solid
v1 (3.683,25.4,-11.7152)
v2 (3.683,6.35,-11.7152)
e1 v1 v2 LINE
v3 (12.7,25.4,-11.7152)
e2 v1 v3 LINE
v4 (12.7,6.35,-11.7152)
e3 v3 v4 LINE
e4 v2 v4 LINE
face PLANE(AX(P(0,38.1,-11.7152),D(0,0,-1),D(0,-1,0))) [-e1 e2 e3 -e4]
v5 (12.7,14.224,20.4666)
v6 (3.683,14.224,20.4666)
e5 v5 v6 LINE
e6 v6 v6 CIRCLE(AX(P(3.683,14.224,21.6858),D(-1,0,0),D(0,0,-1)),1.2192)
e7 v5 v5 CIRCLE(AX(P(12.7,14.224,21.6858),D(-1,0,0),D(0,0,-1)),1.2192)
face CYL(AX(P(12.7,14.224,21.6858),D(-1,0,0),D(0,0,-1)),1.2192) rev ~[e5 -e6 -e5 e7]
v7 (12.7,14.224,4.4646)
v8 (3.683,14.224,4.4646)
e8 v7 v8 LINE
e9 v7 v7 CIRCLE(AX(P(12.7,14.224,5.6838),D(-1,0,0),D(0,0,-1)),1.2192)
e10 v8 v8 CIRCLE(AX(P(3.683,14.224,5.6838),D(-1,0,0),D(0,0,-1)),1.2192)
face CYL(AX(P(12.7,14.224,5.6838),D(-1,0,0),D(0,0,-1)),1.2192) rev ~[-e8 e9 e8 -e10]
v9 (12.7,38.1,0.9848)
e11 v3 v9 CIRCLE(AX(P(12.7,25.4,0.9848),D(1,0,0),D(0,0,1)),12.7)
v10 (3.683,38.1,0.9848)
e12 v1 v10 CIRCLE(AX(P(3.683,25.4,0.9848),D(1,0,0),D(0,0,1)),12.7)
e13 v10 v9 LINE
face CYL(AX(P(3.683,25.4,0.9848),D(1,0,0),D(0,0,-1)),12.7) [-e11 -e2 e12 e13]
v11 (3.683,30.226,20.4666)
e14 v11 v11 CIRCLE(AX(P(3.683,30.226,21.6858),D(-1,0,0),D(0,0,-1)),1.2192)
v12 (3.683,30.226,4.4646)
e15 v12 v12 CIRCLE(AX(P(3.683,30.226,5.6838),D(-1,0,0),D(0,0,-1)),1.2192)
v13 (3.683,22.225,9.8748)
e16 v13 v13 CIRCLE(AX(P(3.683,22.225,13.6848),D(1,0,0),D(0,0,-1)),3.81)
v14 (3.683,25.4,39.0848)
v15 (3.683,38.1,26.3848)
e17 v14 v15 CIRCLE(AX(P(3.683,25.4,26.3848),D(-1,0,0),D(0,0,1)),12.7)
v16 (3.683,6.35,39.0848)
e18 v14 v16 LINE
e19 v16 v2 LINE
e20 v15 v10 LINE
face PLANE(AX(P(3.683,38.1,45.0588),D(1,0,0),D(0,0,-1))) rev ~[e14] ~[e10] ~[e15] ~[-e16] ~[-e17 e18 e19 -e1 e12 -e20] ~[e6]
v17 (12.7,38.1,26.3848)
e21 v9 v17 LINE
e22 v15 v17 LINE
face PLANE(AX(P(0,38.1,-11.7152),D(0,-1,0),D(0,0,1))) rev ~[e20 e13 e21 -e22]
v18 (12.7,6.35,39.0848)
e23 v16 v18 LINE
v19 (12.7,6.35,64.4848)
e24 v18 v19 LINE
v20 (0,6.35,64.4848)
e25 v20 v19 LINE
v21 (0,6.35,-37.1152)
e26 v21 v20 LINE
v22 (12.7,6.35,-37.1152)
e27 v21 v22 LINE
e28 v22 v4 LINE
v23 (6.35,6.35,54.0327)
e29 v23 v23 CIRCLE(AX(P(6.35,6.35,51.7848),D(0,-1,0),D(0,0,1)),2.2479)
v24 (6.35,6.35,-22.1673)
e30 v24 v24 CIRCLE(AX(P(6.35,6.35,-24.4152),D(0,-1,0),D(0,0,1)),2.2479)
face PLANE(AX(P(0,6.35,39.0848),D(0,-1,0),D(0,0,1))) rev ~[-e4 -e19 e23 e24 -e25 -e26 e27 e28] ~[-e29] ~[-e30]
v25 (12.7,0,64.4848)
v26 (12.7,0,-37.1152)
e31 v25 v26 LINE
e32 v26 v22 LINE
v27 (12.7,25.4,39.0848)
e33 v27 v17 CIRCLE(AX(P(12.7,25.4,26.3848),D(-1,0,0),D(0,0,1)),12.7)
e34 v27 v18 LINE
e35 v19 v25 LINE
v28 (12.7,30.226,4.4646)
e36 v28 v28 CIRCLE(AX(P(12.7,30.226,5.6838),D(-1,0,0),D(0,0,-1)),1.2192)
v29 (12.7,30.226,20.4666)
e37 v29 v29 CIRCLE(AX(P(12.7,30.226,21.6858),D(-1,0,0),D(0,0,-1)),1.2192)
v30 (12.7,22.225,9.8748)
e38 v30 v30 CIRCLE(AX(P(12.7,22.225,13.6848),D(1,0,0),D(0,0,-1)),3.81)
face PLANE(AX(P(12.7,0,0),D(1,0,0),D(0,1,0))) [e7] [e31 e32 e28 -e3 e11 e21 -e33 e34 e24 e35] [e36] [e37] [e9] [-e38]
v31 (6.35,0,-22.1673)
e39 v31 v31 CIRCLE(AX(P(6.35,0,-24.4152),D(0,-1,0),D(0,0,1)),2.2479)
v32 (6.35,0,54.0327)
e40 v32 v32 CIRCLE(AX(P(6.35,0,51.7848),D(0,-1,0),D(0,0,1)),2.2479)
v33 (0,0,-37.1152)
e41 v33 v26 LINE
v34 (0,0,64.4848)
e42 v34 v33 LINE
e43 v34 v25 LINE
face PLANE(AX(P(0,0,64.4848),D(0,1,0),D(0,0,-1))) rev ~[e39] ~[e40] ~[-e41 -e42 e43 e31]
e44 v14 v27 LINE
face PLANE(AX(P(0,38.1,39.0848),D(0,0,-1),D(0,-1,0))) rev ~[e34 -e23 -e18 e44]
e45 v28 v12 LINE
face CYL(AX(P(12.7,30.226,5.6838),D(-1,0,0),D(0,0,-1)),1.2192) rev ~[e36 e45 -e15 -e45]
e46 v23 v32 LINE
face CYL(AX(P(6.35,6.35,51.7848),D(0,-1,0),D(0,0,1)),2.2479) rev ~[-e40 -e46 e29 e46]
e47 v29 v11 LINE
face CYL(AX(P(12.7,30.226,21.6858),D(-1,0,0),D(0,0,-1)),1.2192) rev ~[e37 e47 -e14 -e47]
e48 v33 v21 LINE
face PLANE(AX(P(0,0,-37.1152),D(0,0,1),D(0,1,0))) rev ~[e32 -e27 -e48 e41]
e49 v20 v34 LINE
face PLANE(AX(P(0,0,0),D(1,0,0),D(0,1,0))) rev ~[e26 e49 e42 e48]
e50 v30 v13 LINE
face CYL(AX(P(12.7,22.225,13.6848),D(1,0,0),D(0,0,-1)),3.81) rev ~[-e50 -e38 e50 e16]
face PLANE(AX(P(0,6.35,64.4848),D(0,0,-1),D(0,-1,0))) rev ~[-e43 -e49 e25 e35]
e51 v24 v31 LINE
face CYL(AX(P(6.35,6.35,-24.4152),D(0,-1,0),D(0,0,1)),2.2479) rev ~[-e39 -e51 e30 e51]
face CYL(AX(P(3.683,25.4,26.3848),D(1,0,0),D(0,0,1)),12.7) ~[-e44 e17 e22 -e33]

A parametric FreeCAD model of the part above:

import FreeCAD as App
import Part
import Sketcher

V = App.Vector
Q = App.Units.Quantity


def edges_at(feature, points):
    """Names of the edges that pass closest to the given points."""
    edges = feature.Shape.Edges
    near = lambda p: min(range(len(edges)), key=lambda i: edges[i].distToShape(Part.Vertex(*p))[0])
    return sorted({f"Edge{near(p) + 1}" for p in points})

doc = App.newDocument("Part")
params = doc.addObject("Spreadsheet::Sheet", "Params")
for row, (alias, value) in enumerate([
    ("sketch1_height", "1 in"),
    ("sketch1_height2", "4 in"),
    ("sketch1_width", "0.25 in"),
    ("sketch1_width2", "1.25 in"),
    ("pad1_length", "0.5 in"),
    ("sketch2_diameter", "0.177 in"),
    ("hole_diameter", "0.177 in"),
    ("sketch3_height", "2.434 in"),
    ("pocket1_length", "1.25 in"),
    ("sketch4_diameter", "0.3 in"),
    ("pocket2_length", "1 in"),
    ("sketch5_diameter", "0.096 in"),
    ("hole2_diameter", "0.096 in"),
    ("fillet_radius", "0.5 in"),
], start=1):
    params.set(f"A{row}", alias)
    params.set(f"B{row}", "=" + value)
    params.setAlias(f"B{row}", alias)

body = doc.addObject("PartDesign::Body", "Body")

# Sketch on YZ plane
sketch1 = body.newObject("Sketcher::SketchObject", "Sketch")
sketch1.AttachmentSupport = (doc.getObject("YZ_Plane"), [""])
sketch1.MapMode = "FlatFace"
sketch1.addGeometry([
    Part.LineSegment(V(6, 39, 0), V(6, 64, 0)),  # 0
    Part.LineSegment(V(6, 64, 0), V(0, 64, 0)),  # 1
    Part.LineSegment(V(0, 64, 0), V(0, -37, 0)),  # 2
    Part.LineSegment(V(0, -37, 0), V(6, -37, 0)),  # 3
    Part.LineSegment(V(6, -37, 0), V(6, -12, 0)),  # 4
    Part.LineSegment(V(6, -12, 0), V(38, -12, 0)),  # 5
    Part.LineSegment(V(38, -12, 0), V(38, 39, 0)),  # 6
    Part.LineSegment(V(38, 39, 0), V(6, 39, 0)),  # 7
], False)
sketch1.addConstraint([
    Sketcher.Constraint("Coincident", 0, 2, 1, 1),
    Sketcher.Constraint("Coincident", 1, 2, 2, 1),
    Sketcher.Constraint("Coincident", 2, 2, 3, 1),
    Sketcher.Constraint("Coincident", 3, 2, 4, 1),
    Sketcher.Constraint("Coincident", 4, 2, 5, 1),
    Sketcher.Constraint("Coincident", 5, 2, 6, 1),
    Sketcher.Constraint("Coincident", 6, 2, 7, 1),
    Sketcher.Constraint("Coincident", 7, 2, 0, 1),
    Sketcher.Constraint("Vertical", 0),
    Sketcher.Constraint("Horizontal", 1),
    Sketcher.Constraint("Vertical", 2),
    Sketcher.Constraint("Horizontal", 3),
    Sketcher.Constraint("Vertical", 4),
    Sketcher.Constraint("Horizontal", 5),
    Sketcher.Constraint("Vertical", 6),
    Sketcher.Constraint("Horizontal", 7),
    Sketcher.Constraint("PointOnObject", 1, 2, -2),
    Sketcher.Constraint("Vertical", 0, 2, 3, 2),
    Sketcher.Constraint("Equal", 0, 4),
    Sketcher.Constraint("DistanceY", 0, 1, 0, 2, Q("1 in")),
    Sketcher.Constraint("DistanceY", 2, 2, 2, 1, Q("4 in")),
    Sketcher.Constraint("DistanceX", 1, 2, 1, 1, Q("0.25 in")),
    Sketcher.Constraint("DistanceX", 5, 1, 5, 2, Q("1.25 in")),
    Sketcher.Constraint("DistanceY", -1, 1, 0, 2, Q("64.4848 mm")),
])
sketch1.setExpression("Constraints[19]", "Params.sketch1_height")
sketch1.setExpression("Constraints[20]", "Params.sketch1_height2")
sketch1.setExpression("Constraints[21]", "Params.sketch1_width")
sketch1.setExpression("Constraints[22]", "Params.sketch1_width2")
pad1 = body.newObject("PartDesign::Pad", "Pad")
pad1.Profile = sketch1
pad1.setExpression("Length", "Params.pad1_length")

# Sketch on XZ plane
sketch2 = body.newObject("Sketcher::SketchObject", "Sketch001")
sketch2.AttachmentSupport = (doc.getObject("XZ_Plane"), [""])
sketch2.MapMode = "FlatFace"
sketch2.AttachmentOffset = App.Placement(V(0, 0, -0.25 * 25.4), App.Rotation())
sketch2.addGeometry([
    Part.Circle(V(6.3, 51.8, 0), V(0, 0, 1), 2.2),
    Part.Circle(V(6.3, -24.4, 0), V(0, 0, 1), 2.2),
], False)
sketch2.addConstraint([
    Sketcher.Constraint("Equal", 0, 1),
    Sketcher.Constraint("Vertical", 0, 3, 1, 3),
    Sketcher.Constraint("Diameter", 0, Q("0.177 in")),
    Sketcher.Constraint("DistanceY", 1, 3, 0, 3, Q("3 in")),
    Sketcher.Constraint("DistanceX", -1, 1, 0, 3, Q("0.25 in")),
    Sketcher.Constraint("DistanceY", -1, 1, 0, 3, Q("51.7848 mm")),
])
sketch2.setExpression("Constraints[2]", "Params.sketch2_diameter")
doc.recompute()
hole = body.newObject("PartDesign::Hole", "Hole")
hole.Profile = sketch2
hole.ThreadType = "None"
hole.setExpression("Diameter", "Params.hole_diameter")
hole.DepthType = "ThroughAll"
hole.Reversed = True

# Sketch on XZ plane
sketch3 = body.newObject("Sketcher::SketchObject", "Sketch002")
sketch3.AttachmentSupport = (doc.getObject("XZ_Plane"), [""])
sketch3.MapMode = "FlatFace"
sketch3.AttachmentOffset = App.Placement(V(0, 0, -1.5 * 25.4), App.Rotation())
sketch3.addGeometry([
    Part.LineSegment(V(-9, -17, 0), V(-9, 45, 0)),
    Part.LineSegment(V(-9, 45, 0), V(4, 45, 0)),
    Part.LineSegment(V(4, 45, 0), V(4, -17, 0)),
    Part.LineSegment(V(4, -17, 0), V(-9, -17, 0)),
], False)
sketch3.addConstraint([
    Sketcher.Constraint("Coincident", 0, 2, 1, 1),
    Sketcher.Constraint("Coincident", 1, 2, 2, 1),
    Sketcher.Constraint("Coincident", 2, 2, 3, 1),
    Sketcher.Constraint("Coincident", 3, 2, 0, 1),
    Sketcher.Constraint("Vertical", 0),
    Sketcher.Constraint("Horizontal", 1),
    Sketcher.Constraint("Vertical", 2),
    Sketcher.Constraint("Horizontal", 3),
    Sketcher.Constraint("DistanceX", -1, 1, 1, 2, Q("0.145 in")),
    Sketcher.Constraint("DistanceY", 0, 1, 0, 2, Q("2.434 in")),
    Sketcher.Constraint("DistanceX", 1, 1, 1, 2, Q("12.421 mm")),
    Sketcher.Constraint("DistanceY", -1, 1, 0, 2, Q("45.0588 mm")),
])
sketch3.setExpression("Constraints[9]", "Params.sketch3_height")
pocket1 = body.newObject("PartDesign::Pocket", "Pocket")
pocket1.Profile = sketch3
pocket1.setExpression("Length", "Params.pocket1_length")
pocket1.Reversed = True

# Sketch on YZ plane
sketch4 = body.newObject("Sketcher::SketchObject", "Sketch003")
sketch4.AttachmentSupport = (doc.getObject("YZ_Plane"), [""])
sketch4.MapMode = "FlatFace"
sketch4.AttachmentOffset = App.Placement(V(0, 0, 0.5 * 25.4), App.Rotation())
sketch4.addGeometry(Part.Circle(V(22.2, 13.7, 0), V(0, 0, 1), 3.8), False)
sketch4.addConstraint([
    Sketcher.Constraint("Diameter", 0, Q("0.3 in")),
    Sketcher.Constraint("DistanceX", -1, 1, 0, 3, Q("0.875 in")),
    Sketcher.Constraint("DistanceY", -1, 1, 0, 3, Q("13.6848 mm")),
])
sketch4.setExpression("Constraints[0]", "Params.sketch4_diameter")
pocket2 = body.newObject("PartDesign::Pocket", "Pocket001")
pocket2.Profile = sketch4
pocket2.setExpression("Length", "Params.pocket2_length")

# Sketch on YZ plane
sketch5 = body.newObject("Sketcher::SketchObject", "Sketch004")
sketch5.AttachmentSupport = (doc.getObject("YZ_Plane"), [""])
sketch5.MapMode = "FlatFace"
sketch5.AttachmentOffset = App.Placement(V(0, 0, 0.5 * 25.4), App.Rotation())
sketch5.addGeometry([
    Part.Circle(V(30.2, 21.7, 0), V(0, 0, 1), 1.2),
    Part.Circle(V(30.2, 5.7, 0), V(0, 0, 1), 1.2),
    Part.Circle(V(14.2, 5.7, 0), V(0, 0, 1), 1.2),
    Part.Circle(V(14.2, 21.7, 0), V(0, 0, 1), 1.2),
], False)
sketch5.addConstraint([
    Sketcher.Constraint("Equal", 0, 1),
    Sketcher.Constraint("Equal", 1, 2),
    Sketcher.Constraint("Equal", 2, 3),
    Sketcher.Constraint("Horizontal", 1, 3, 2, 3),
    Sketcher.Constraint("Horizontal", 0, 3, 3, 3),
    Sketcher.Constraint("Vertical", 0, 3, 1, 3),
    Sketcher.Constraint("Vertical", 2, 3, 3, 3),
    Sketcher.Constraint("Diameter", 0, Q("0.096 in")),
    Sketcher.Constraint("DistanceX", -1, 1, 0, 3, Q("1.19 in")),
    Sketcher.Constraint("DistanceX", -1, 1, 2, 3, Q("0.56 in")),
    Sketcher.Constraint("DistanceY", 1, 3, 0, 3, Q("0.63 in")),
    Sketcher.Constraint("DistanceY", -1, 1, 0, 3, Q("21.6858 mm")),
])
sketch5.setExpression("Constraints[7]", "Params.sketch5_diameter")
doc.recompute()
hole2 = body.newObject("PartDesign::Hole", "Hole001")
hole2.Profile = sketch5
hole2.ThreadType = "None"
hole2.setExpression("Diameter", "Params.hole2_diameter")
hole2.DepthType = "ThroughAll"
doc.recompute()

fillet = body.newObject("PartDesign::Fillet", "Fillet")
fillet.Base = (hole2, edges_at(hole2, [(8.191, 38.1, 39.085), (8.191, 38.1, -11.715)]))
fillet.setExpression("Radius", "Params.fillet_radius")

doc.recompute()
